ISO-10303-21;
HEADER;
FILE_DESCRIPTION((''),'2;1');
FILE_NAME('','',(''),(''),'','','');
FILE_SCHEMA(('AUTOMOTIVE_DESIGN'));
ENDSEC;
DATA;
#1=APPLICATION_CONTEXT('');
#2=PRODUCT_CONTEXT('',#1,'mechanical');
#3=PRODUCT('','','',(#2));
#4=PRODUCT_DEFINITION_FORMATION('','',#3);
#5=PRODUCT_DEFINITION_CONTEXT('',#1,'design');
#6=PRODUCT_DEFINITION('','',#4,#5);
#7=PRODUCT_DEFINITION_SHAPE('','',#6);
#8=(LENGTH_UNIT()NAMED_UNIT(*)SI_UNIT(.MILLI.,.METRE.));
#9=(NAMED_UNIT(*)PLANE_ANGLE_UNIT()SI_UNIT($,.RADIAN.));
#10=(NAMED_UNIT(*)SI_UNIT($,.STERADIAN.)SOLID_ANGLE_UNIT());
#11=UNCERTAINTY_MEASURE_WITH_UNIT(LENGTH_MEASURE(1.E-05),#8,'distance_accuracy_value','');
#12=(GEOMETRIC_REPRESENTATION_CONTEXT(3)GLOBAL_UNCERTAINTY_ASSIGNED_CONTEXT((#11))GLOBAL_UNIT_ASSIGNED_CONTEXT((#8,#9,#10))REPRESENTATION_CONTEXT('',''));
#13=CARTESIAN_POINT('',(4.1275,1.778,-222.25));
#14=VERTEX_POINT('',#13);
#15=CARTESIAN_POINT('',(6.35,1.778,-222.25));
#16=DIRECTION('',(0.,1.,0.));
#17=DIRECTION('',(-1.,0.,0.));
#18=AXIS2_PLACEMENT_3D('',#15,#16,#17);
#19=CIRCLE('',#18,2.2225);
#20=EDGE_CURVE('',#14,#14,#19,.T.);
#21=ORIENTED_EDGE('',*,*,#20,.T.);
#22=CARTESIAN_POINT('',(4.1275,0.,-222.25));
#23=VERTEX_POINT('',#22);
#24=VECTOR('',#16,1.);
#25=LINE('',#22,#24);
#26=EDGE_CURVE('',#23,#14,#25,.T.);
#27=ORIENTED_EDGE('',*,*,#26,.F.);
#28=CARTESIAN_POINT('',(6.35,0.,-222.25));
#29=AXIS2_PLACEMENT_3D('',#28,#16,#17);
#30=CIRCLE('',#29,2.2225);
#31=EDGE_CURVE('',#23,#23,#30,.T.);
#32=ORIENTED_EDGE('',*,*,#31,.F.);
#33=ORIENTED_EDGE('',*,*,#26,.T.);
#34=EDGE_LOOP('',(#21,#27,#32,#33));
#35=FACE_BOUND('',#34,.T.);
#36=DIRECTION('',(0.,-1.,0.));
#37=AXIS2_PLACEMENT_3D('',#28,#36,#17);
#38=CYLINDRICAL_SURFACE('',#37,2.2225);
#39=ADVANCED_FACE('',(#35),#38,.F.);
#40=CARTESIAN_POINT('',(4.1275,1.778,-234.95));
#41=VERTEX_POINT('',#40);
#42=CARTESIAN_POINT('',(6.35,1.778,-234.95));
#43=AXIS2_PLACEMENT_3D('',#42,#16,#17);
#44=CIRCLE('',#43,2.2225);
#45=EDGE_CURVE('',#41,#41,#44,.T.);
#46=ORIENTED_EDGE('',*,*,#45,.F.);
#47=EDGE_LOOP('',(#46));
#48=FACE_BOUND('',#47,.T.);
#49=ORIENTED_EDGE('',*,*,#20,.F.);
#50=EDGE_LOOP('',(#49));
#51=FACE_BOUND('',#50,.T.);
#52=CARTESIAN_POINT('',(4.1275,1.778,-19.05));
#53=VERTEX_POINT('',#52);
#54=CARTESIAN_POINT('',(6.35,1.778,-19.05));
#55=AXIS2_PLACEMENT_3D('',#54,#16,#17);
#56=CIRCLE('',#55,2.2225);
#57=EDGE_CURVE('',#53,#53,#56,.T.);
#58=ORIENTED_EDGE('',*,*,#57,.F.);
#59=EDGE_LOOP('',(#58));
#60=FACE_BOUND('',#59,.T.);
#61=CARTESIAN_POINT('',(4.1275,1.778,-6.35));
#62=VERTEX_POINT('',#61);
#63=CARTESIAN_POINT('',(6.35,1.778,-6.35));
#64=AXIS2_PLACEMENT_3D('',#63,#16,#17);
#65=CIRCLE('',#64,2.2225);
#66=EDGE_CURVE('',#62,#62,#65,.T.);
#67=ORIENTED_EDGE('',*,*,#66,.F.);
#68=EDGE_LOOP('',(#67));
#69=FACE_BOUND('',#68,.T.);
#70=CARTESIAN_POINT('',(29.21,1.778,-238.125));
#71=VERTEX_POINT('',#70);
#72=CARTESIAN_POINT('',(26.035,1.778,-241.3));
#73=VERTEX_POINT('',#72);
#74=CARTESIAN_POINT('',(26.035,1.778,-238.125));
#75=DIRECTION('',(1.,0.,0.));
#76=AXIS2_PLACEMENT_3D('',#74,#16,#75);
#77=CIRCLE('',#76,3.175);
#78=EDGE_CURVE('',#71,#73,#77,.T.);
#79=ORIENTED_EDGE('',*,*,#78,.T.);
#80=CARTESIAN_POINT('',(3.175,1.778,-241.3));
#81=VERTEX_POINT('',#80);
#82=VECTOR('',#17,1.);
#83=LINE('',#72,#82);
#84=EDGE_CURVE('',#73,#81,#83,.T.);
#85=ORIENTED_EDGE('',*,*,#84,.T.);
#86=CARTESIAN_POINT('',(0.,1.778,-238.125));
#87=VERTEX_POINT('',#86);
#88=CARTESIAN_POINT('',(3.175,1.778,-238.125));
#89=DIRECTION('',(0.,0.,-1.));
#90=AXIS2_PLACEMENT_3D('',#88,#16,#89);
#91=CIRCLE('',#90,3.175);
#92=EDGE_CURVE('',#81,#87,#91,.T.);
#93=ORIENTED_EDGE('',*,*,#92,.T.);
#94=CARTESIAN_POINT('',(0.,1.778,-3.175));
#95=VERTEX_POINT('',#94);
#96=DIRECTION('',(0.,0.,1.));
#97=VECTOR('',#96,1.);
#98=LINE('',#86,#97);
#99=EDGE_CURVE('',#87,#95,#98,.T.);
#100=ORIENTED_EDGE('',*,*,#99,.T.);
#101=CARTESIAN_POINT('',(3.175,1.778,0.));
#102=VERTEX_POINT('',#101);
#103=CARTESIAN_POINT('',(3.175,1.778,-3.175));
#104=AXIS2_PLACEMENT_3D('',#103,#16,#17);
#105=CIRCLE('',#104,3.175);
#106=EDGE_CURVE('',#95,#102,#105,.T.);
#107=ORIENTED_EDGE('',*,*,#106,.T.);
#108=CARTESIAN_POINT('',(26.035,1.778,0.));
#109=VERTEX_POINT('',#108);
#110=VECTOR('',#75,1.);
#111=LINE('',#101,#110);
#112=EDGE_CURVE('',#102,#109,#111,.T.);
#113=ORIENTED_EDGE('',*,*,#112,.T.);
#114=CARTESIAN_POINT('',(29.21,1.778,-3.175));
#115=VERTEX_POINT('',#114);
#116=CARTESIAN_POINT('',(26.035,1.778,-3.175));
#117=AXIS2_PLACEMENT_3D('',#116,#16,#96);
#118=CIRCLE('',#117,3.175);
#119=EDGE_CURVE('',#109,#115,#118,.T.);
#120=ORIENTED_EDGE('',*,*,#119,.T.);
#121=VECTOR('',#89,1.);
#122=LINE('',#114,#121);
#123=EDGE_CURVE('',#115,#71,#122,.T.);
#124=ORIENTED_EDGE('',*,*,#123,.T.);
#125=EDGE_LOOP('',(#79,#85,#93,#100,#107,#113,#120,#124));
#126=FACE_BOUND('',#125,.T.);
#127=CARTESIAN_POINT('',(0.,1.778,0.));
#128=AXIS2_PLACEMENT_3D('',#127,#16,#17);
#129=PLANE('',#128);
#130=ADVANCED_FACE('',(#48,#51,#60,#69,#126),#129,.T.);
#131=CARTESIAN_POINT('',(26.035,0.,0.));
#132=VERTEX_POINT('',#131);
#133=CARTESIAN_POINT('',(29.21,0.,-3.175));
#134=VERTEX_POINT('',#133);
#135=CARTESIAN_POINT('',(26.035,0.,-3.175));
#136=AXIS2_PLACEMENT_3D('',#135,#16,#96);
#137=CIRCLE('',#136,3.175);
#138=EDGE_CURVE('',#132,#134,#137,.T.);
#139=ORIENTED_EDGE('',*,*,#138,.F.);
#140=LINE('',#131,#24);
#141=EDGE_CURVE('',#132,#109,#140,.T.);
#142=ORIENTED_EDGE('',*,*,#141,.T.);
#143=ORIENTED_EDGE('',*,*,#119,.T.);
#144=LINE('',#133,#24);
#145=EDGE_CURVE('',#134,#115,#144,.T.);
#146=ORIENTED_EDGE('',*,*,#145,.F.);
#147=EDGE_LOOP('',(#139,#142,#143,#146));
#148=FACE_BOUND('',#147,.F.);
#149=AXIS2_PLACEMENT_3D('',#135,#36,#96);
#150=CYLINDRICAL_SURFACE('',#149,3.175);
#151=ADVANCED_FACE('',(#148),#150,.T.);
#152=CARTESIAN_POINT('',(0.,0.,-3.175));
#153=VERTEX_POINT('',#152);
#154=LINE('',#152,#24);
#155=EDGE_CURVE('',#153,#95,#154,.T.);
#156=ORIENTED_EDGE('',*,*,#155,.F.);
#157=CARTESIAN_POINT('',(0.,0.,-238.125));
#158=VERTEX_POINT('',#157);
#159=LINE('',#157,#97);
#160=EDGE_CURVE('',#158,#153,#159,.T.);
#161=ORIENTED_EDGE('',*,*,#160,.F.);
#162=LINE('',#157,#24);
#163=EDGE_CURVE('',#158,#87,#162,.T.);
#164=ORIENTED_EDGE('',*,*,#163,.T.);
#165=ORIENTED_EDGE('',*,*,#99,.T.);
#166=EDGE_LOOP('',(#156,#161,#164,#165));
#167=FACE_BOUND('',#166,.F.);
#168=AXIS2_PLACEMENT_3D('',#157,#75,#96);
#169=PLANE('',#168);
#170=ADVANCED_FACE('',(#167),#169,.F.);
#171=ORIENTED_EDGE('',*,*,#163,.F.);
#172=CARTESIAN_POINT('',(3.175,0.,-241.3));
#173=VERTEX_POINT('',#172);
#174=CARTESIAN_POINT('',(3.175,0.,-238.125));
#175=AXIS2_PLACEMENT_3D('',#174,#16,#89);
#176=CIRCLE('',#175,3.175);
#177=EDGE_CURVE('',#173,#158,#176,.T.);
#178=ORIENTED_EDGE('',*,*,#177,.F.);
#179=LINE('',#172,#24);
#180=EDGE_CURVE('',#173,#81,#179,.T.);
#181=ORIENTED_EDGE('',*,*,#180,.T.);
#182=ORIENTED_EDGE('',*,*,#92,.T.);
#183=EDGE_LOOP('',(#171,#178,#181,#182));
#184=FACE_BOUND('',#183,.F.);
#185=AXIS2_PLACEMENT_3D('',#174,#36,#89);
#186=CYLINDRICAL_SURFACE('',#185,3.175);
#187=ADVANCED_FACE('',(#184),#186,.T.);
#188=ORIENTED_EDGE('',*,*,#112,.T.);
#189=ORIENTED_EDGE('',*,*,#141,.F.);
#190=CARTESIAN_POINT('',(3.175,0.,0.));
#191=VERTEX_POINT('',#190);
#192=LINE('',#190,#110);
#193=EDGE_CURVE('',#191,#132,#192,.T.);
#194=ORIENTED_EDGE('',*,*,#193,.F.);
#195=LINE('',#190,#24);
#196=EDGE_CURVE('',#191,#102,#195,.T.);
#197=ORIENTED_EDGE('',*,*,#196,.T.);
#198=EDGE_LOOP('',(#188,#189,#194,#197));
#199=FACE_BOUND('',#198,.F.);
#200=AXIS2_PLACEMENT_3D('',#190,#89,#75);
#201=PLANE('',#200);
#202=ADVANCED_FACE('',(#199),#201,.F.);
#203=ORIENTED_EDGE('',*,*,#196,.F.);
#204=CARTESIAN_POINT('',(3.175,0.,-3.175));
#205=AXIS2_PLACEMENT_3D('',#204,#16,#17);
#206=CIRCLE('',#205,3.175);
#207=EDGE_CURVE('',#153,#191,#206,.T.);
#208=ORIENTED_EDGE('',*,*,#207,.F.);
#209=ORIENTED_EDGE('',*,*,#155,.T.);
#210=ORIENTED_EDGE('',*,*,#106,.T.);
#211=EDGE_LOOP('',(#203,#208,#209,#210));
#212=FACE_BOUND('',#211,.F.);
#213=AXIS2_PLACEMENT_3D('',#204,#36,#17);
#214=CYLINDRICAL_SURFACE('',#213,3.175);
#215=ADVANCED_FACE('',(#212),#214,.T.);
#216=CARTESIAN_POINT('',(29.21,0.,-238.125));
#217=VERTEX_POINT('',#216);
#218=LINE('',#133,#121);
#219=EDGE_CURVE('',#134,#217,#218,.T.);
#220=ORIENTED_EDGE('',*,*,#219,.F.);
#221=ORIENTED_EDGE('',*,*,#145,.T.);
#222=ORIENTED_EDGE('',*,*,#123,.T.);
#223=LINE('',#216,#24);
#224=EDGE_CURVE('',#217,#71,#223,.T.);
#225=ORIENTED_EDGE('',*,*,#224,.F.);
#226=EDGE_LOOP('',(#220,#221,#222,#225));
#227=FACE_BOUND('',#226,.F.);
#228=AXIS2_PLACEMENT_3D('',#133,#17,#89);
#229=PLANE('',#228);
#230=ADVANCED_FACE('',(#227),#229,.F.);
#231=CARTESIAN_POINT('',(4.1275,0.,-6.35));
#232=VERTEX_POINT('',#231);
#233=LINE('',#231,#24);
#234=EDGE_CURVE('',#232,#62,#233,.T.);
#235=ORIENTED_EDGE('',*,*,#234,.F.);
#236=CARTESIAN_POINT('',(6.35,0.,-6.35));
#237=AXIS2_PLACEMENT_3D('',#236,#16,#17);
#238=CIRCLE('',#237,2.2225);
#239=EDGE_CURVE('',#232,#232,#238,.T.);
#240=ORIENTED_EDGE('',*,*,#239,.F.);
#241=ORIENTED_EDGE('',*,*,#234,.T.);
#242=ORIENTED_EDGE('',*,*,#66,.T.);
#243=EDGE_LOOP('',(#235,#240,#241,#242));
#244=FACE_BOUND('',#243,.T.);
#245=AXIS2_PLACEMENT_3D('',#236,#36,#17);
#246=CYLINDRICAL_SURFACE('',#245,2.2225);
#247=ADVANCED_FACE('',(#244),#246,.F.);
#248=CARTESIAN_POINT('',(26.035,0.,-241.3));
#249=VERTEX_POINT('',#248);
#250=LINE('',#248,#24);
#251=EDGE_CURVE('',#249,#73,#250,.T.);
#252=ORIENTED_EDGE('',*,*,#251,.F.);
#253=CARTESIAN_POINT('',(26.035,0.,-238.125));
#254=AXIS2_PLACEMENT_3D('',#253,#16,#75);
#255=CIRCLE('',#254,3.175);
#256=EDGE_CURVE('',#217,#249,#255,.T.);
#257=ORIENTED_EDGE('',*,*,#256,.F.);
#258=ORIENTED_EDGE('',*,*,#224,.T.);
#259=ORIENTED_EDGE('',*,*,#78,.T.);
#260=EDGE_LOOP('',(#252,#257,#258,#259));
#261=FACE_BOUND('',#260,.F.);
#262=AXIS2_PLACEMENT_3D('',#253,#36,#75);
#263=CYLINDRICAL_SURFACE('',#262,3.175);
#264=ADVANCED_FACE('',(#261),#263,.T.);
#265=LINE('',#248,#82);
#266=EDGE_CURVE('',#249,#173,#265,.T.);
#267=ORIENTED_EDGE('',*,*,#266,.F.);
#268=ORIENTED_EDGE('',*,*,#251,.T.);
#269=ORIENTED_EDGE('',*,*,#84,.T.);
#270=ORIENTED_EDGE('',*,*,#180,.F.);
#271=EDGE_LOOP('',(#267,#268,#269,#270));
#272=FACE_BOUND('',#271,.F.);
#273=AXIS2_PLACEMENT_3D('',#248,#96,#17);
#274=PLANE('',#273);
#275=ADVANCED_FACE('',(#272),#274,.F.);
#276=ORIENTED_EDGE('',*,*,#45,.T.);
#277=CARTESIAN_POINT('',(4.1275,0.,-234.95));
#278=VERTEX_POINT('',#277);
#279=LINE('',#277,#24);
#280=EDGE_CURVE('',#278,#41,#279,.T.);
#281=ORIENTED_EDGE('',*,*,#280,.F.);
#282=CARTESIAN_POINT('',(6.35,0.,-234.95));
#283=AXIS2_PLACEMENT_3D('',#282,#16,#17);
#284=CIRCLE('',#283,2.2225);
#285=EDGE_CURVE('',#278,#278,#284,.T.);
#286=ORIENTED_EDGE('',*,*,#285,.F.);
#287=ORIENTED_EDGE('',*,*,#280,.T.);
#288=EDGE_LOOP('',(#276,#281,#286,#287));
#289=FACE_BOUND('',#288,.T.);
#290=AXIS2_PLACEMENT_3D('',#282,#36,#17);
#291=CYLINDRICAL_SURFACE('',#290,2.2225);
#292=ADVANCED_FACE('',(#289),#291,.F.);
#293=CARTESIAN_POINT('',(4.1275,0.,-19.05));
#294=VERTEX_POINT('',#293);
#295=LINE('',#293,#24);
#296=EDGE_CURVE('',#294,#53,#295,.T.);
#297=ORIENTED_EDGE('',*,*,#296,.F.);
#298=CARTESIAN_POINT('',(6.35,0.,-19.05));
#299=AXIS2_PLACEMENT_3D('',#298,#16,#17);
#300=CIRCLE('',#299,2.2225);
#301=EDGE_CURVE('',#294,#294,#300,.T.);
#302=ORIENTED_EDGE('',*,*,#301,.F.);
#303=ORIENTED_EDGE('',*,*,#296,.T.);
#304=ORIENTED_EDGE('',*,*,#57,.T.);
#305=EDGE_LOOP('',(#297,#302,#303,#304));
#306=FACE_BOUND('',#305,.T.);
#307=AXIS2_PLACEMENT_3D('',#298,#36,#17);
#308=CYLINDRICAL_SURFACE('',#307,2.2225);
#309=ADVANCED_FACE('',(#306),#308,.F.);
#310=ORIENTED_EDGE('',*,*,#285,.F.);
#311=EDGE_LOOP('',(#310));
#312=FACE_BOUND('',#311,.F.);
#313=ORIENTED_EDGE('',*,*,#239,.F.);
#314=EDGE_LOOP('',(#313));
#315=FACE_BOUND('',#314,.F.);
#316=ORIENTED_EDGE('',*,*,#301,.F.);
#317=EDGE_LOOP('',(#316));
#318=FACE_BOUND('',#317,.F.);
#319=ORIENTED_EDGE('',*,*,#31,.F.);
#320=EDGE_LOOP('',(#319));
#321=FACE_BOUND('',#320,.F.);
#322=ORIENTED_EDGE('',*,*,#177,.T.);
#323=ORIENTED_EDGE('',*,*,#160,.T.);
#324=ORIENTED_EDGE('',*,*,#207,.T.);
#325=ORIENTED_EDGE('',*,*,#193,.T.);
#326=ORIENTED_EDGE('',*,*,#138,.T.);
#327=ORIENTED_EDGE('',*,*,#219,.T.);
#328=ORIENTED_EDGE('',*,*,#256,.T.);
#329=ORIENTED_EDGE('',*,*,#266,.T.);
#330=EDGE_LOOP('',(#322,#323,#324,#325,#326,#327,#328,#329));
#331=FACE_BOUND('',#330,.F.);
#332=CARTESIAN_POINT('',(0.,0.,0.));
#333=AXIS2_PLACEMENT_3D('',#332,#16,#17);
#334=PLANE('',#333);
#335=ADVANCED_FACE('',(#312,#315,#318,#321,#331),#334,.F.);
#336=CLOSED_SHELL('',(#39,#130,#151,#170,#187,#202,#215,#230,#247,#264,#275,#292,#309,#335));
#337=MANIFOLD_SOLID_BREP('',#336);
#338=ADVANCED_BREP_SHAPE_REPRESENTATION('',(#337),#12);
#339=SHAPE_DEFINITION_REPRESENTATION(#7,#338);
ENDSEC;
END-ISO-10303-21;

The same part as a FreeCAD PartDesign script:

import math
import FreeCAD as App
import Part
import Sketcher

V = App.Vector
Q = App.Units.Quantity

doc = App.newDocument("Part")
body = doc.addObject("PartDesign::Body", "Body")

# Sketch on XZ plane
sketch1 = doc.addObject("Sketcher::SketchObject", "Sketch")
body.addObject(sketch1)
sketch1.AttachmentSupport = (doc.XZ_Plane, [""])
sketch1.MapMode = "FlatFace"
sketch1.addGeometry(Part.ArcOfCircle(Part.Circle(V(3.2, -3.2, 0), V(0, 0, 1), 3.2), math.radians(90), math.radians(180)), False)
sketch1.addGeometry(Part.LineSegment(V(3.2, 0, 0), V(26, 0, 0)), False)
sketch1.addGeometry(Part.ArcOfCircle(Part.Circle(V(26, -3.2, 0), V(0, 0, 1), 3.2), math.radians(0), math.radians(90)), False)
sketch1.addGeometry(Part.LineSegment(V(29.2, -3.2, 0), V(29.2, -238.1, 0)), False)
sketch1.addGeometry(Part.ArcOfCircle(Part.Circle(V(26, -238.1, 0), V(0, 0, 1), 3.2), math.radians(-90), math.radians(0)), False)
sketch1.addGeometry(Part.LineSegment(V(26, -241.3, 0), V(3.2, -241.3, 0)), False)
sketch1.addGeometry(Part.ArcOfCircle(Part.Circle(V(3.2, -238.1, 0), V(0, 0, 1), 3.2), math.radians(180), math.radians(270)), False)
sketch1.addGeometry(Part.LineSegment(V(0, -238.1, 0), V(0, -3.2, 0)), False)
sketch1.addGeometry(Part.Circle(V(6.3, -234.9, 0), V(0, 0, 1), 2.2), False)
sketch1.addGeometry(Part.Circle(V(6.3, -222.2, 0), V(0, 0, 1), 2.2), False)
sketch1.addGeometry(Part.Circle(V(6.3, -19.1, 0), V(0, 0, 1), 2.2), False)
sketch1.addGeometry(Part.Circle(V(6.3, -6.3, 0), V(0, 0, 1), 2.2), False)
sketch1.addConstraint(Sketcher.Constraint("Tangent", 0, 1, 1, 1))
sketch1.addConstraint(Sketcher.Constraint("Tangent", 1, 2, 2, 2))
sketch1.addConstraint(Sketcher.Constraint("Tangent", 2, 1, 3, 1))
sketch1.addConstraint(Sketcher.Constraint("Tangent", 3, 2, 4, 2))
sketch1.addConstraint(Sketcher.Constraint("Tangent", 4, 1, 5, 1))
sketch1.addConstraint(Sketcher.Constraint("Tangent", 5, 2, 6, 2))
sketch1.addConstraint(Sketcher.Constraint("Tangent", 6, 1, 7, 1))
sketch1.addConstraint(Sketcher.Constraint("Tangent", 7, 2, 0, 2))
sketch1.addConstraint(Sketcher.Constraint("Horizontal", 1))
sketch1.addConstraint(Sketcher.Constraint("Vertical", 3))
sketch1.addConstraint(Sketcher.Constraint("Horizontal", 5))
sketch1.addConstraint(Sketcher.Constraint("Vertical", 7))
sketch1.addConstraint(Sketcher.Constraint("Equal", 0, 2))
sketch1.addConstraint(Sketcher.Constraint("Equal", 2, 4))
sketch1.addConstraint(Sketcher.Constraint("Equal", 4, 6))
sketch1.addConstraint(Sketcher.Constraint("Equal", 8, 9))
sketch1.addConstraint(Sketcher.Constraint("Equal", 9, 10))
sketch1.addConstraint(Sketcher.Constraint("Equal", 10, 11))
sketch1.addConstraint(Sketcher.Constraint("PointOnObject", 0, 1, -1))
sketch1.addConstraint(Sketcher.Constraint("PointOnObject", 6, 1, -2))
sketch1.addConstraint(Sketcher.Constraint("Vertical", 8, 3, 9, 3))
sketch1.addConstraint(Sketcher.Constraint("Vertical", 9, 3, 10, 3))
sketch1.addConstraint(Sketcher.Constraint("Vertical", 10, 3, 11, 3))
sketch1.addConstraint(Sketcher.Constraint("Diameter", 8, Q("0.175 in")))
sketch1.addConstraint(Sketcher.Constraint("Radius", 0, Q("0.125 in")))
sketch1.addConstraint(Sketcher.Constraint("DistanceY", 4, 1, -1, 1, Q("9.5 in")))
sketch1.addConstraint(Sketcher.Constraint("DistanceX", -1, 1, 2, 1, Q("1.15 in")))
sketch1.addConstraint(Sketcher.Constraint("DistanceX", 6, 3, 8, 3, Q("0.125 in")))
sketch1.addConstraint(Sketcher.Constraint("DistanceY", 6, 3, 8, 3, Q("0.125 in")))
sketch1.addConstraint(Sketcher.Constraint("DistanceY", 9, 3, 10, 3, Q("8 in")))
sketch1.addConstraint(Sketcher.Constraint("DistanceY", 11, 3, 0, 3, Q("0.125 in")))
sketch1.addConstraint(Sketcher.Constraint("DistanceY", 8, 3, 9, 3, Q("0.5 in")))
pad1 = doc.addObject("PartDesign::Pad", "Pad")
body.addObject(pad1)
pad1.Profile = sketch1
pad1.Length = Q("0.07 in")
pad1.Reversed = True

doc.recompute()
